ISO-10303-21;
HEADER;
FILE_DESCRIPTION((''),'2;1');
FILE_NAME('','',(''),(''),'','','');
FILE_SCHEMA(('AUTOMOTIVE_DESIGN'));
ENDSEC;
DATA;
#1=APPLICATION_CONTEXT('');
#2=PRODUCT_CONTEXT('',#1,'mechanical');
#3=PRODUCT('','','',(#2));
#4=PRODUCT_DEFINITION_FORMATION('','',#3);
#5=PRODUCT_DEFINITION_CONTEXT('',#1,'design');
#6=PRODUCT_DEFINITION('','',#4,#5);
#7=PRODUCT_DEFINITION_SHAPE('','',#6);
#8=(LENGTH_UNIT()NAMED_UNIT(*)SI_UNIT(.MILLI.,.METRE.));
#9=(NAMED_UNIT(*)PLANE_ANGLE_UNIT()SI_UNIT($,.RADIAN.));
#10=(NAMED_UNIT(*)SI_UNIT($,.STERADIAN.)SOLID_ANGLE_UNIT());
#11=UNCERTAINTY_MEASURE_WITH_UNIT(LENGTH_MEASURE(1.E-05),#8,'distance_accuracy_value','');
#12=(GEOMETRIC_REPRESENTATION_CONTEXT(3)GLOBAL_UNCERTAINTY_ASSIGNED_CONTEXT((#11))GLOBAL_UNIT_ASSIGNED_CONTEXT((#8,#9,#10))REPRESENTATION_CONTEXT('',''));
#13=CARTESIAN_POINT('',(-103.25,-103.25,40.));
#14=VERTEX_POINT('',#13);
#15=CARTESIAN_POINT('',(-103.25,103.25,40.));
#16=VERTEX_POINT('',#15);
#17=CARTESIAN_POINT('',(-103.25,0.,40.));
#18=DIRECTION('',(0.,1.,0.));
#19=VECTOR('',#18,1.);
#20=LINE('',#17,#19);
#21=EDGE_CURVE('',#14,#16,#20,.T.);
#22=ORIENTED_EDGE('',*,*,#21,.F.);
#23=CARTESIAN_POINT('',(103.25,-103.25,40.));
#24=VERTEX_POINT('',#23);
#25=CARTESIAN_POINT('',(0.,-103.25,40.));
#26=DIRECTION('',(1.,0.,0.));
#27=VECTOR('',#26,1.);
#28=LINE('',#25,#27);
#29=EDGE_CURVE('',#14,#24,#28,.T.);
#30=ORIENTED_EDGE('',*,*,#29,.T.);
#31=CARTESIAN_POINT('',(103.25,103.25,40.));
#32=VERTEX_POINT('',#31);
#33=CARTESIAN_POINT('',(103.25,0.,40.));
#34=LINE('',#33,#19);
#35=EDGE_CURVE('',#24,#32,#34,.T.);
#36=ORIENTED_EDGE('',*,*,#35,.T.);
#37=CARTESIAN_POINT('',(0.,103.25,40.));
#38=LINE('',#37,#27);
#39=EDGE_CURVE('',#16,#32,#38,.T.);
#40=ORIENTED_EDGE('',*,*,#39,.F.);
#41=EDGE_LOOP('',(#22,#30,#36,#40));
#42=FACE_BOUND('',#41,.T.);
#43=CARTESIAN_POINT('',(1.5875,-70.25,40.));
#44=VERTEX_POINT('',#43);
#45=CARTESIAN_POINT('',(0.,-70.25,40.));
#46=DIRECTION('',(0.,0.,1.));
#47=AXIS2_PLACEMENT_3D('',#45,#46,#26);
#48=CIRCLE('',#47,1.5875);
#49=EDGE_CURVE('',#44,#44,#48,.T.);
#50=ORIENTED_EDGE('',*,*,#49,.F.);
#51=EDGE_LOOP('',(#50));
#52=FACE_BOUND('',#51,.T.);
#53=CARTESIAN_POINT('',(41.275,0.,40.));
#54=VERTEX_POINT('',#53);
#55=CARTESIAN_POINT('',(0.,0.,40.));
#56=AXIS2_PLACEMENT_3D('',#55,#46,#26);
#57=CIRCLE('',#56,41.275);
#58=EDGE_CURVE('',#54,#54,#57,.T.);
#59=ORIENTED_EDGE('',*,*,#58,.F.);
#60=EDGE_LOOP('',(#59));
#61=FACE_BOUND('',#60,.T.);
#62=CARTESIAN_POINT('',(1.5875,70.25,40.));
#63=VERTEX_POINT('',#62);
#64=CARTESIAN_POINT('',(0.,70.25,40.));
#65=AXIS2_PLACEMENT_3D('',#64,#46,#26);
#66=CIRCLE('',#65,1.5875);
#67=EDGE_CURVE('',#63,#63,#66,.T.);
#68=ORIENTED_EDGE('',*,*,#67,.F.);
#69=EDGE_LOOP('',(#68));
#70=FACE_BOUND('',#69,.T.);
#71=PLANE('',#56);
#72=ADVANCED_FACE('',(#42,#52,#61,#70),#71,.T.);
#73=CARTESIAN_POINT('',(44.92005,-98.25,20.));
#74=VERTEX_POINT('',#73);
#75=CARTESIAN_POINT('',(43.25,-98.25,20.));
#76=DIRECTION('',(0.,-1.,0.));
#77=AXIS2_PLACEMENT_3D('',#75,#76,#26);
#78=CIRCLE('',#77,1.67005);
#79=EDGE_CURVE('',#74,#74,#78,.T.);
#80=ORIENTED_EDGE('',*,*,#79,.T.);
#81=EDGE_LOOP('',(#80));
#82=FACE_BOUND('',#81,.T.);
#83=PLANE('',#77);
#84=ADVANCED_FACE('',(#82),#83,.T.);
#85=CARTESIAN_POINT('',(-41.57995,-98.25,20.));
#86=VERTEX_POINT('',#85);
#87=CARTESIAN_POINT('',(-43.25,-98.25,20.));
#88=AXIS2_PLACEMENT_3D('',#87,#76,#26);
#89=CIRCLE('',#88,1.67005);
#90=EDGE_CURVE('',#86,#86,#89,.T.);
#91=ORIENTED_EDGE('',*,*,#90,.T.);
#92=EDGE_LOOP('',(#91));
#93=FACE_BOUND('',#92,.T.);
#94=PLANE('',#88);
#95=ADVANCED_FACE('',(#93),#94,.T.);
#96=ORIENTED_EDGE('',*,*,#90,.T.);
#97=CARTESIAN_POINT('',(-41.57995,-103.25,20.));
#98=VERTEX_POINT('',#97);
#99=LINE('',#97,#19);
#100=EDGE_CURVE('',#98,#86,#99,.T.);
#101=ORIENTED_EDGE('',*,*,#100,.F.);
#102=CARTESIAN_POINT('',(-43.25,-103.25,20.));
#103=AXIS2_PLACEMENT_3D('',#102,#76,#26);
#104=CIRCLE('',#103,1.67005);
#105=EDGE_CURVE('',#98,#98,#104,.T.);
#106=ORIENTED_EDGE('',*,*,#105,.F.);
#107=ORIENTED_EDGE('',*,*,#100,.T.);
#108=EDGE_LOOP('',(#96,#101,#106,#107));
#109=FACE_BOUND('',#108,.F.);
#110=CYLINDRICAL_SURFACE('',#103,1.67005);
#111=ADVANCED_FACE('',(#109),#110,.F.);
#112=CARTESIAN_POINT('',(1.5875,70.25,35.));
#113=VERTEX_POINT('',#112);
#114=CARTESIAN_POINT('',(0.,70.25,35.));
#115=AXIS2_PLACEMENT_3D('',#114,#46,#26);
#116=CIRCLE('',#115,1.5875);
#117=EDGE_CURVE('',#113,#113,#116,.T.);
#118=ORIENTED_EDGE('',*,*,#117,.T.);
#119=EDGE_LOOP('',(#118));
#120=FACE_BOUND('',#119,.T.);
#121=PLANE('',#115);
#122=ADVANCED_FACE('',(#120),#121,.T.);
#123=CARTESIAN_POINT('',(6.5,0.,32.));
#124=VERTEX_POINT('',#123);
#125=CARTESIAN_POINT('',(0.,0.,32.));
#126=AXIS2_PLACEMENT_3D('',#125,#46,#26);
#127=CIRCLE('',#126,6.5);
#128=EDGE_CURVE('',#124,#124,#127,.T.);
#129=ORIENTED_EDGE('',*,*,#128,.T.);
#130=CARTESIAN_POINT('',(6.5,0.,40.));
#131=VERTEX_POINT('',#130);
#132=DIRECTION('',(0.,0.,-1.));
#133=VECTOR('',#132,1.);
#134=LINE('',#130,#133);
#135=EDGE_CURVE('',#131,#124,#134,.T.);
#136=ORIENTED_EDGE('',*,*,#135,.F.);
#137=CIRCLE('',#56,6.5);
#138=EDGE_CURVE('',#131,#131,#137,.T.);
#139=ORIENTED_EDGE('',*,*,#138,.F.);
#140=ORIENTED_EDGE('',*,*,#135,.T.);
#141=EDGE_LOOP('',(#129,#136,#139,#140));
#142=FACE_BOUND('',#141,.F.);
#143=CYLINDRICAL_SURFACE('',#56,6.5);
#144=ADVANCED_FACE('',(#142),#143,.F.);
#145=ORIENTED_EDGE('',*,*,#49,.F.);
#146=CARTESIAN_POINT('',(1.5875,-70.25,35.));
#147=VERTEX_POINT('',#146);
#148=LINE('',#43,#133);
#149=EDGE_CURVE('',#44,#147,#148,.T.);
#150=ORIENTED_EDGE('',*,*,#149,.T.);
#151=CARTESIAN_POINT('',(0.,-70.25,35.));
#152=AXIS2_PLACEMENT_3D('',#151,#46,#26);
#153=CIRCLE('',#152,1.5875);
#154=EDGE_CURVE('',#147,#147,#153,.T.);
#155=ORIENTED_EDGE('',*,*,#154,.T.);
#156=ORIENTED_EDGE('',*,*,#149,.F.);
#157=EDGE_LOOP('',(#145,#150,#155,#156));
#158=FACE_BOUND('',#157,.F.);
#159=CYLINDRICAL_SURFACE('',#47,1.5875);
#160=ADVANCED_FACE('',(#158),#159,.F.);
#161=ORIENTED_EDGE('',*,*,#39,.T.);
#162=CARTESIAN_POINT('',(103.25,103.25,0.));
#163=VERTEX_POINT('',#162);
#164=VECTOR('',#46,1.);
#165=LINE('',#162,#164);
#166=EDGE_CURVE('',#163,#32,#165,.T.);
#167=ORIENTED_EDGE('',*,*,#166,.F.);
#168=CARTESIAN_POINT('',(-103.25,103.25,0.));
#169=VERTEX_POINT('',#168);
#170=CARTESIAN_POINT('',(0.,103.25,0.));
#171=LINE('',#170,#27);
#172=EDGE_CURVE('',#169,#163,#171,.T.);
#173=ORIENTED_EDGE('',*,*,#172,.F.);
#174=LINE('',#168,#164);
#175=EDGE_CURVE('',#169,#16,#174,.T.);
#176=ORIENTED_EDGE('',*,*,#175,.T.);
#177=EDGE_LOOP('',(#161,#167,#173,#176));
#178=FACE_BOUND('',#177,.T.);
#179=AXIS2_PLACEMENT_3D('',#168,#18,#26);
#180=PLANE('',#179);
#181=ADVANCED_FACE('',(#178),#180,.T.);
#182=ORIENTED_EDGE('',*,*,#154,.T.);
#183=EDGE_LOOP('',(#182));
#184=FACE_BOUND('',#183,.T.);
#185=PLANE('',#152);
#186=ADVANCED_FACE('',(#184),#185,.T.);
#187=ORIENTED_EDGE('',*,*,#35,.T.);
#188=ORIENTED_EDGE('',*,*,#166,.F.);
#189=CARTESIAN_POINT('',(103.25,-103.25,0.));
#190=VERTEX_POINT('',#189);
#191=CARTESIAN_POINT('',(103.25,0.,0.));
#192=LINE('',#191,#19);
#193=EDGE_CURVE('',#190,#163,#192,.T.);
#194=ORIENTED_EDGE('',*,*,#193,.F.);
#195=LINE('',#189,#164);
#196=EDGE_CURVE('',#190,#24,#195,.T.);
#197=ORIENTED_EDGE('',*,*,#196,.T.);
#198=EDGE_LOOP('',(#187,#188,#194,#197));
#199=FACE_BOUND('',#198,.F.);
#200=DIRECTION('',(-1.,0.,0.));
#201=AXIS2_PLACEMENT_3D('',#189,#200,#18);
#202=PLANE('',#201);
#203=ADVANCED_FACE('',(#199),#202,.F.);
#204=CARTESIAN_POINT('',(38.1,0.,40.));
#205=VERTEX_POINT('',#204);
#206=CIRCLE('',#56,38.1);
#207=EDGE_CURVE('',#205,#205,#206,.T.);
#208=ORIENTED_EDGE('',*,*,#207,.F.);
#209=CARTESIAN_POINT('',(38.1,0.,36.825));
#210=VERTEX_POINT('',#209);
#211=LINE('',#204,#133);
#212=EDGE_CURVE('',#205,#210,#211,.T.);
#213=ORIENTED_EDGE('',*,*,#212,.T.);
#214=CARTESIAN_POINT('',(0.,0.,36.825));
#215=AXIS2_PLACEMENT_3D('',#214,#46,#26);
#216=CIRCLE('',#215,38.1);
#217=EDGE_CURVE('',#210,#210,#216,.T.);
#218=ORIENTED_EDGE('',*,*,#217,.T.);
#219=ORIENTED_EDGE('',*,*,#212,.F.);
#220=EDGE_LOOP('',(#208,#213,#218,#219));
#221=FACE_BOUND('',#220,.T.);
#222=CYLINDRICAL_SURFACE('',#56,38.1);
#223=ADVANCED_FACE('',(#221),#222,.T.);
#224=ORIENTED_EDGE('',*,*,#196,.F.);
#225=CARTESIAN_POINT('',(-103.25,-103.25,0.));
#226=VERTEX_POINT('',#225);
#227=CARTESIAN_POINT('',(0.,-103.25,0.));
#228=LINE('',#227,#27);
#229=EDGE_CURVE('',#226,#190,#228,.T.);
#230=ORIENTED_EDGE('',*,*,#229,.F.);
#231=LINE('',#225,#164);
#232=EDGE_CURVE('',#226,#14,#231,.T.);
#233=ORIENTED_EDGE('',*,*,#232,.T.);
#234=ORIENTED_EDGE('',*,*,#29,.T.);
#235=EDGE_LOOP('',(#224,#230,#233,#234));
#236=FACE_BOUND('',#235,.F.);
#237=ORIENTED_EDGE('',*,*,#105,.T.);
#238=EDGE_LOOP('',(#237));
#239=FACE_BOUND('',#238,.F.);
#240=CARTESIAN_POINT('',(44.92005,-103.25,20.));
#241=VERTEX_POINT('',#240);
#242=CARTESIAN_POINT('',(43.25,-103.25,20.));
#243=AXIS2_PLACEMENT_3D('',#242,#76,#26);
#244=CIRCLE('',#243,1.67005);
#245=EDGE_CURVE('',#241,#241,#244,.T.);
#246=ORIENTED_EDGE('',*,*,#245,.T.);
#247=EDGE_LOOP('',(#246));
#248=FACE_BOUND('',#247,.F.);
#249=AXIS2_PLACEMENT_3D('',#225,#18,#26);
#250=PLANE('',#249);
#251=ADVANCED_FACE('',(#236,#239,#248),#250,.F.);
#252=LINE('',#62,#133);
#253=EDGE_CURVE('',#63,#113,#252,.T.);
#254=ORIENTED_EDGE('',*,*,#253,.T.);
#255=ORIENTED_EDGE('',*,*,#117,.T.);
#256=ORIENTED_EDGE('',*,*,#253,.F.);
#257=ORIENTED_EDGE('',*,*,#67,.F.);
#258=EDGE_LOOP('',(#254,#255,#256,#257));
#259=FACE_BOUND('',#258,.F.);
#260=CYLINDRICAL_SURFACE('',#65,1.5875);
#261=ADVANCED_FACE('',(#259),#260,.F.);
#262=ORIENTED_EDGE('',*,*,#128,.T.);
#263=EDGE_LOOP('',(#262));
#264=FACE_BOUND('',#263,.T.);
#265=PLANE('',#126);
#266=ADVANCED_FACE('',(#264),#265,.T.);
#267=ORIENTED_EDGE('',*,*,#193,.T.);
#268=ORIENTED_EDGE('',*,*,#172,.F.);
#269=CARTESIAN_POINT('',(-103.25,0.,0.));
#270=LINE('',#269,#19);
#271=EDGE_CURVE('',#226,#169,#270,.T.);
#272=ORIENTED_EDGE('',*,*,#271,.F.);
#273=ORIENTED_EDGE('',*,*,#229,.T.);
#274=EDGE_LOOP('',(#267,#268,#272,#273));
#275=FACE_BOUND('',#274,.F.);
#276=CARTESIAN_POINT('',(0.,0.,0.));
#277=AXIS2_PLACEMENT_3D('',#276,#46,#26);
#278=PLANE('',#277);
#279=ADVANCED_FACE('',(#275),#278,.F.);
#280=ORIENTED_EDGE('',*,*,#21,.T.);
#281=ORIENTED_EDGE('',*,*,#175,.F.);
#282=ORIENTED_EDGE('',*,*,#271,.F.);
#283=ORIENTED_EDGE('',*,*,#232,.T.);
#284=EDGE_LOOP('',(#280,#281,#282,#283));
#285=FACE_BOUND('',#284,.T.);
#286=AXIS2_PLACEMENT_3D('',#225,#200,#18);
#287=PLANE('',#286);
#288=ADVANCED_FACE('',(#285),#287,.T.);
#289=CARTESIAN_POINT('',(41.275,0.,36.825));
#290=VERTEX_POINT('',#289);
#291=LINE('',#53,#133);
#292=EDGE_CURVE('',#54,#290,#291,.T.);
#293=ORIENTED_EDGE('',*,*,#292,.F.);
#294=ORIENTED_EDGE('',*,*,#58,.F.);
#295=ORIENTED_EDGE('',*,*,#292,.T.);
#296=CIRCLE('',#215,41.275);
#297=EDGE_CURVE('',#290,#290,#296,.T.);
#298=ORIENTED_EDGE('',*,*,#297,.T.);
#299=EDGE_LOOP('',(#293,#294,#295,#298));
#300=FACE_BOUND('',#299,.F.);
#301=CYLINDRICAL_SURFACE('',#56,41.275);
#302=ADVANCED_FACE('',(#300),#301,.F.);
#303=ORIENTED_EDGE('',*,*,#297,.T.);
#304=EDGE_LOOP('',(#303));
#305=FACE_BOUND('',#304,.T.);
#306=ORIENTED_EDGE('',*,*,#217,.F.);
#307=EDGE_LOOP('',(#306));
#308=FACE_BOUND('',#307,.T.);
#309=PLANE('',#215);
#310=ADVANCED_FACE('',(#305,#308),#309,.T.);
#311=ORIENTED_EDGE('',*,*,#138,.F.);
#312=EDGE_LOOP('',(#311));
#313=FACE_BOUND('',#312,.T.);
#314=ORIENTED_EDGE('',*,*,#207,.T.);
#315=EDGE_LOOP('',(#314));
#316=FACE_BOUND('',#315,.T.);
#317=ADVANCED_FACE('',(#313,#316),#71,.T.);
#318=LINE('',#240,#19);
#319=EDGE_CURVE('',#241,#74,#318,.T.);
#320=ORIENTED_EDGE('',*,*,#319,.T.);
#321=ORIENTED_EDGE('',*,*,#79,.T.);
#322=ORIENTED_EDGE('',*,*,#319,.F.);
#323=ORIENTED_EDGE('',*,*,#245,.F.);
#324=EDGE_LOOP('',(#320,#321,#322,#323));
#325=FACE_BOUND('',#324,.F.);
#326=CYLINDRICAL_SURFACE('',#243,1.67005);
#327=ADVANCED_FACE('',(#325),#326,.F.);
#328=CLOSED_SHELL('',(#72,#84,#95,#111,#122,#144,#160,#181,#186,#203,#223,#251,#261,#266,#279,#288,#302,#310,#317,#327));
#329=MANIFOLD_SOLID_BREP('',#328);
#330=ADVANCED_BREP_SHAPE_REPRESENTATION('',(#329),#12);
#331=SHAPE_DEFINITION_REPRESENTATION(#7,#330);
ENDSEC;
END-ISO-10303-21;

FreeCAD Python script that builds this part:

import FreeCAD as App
import Part
import Sketcher

V = App.Vector

doc = App.newDocument("Part")
body = doc.addObject("PartDesign::Body", "Body")

# Sketch on XY plane
sketch1 = body.newObject("Sketcher::SketchObject", "Sketch")
sketch1.AttachmentSupport = (doc.getObject("XY_Plane"), [""])
sketch1.MapMode = "FlatFace"
sketch1.addGeometry(Part.LineSegment(V(-103, 103, 0), V(-103, -103, 0)), False)
sketch1.addGeometry(Part.LineSegment(V(-103, -103, 0), V(103, -103, 0)), False)
sketch1.addGeometry(Part.LineSegment(V(103, -103, 0), V(103, 103, 0)), False)
sketch1.addGeometry(Part.LineSegment(V(103, 103, 0), V(-103, 103, 0)), False)
sketch1.addConstraint(Sketcher.Constraint("Coincident", 0, 2, 1, 1))
sketch1.addConstraint(Sketcher.Constraint("Coincident", 1, 2, 2, 1))
sketch1.addConstraint(Sketcher.Constraint("Coincident", 2, 2, 3, 1))
sketch1.addConstraint(Sketcher.Constraint("Coincident", 3, 2, 0, 1))
sketch1.addConstraint(Sketcher.Constraint("Vertical", 0))
sketch1.addConstraint(Sketcher.Constraint("Horizontal", 1))
sketch1.addConstraint(Sketcher.Constraint("Vertical", 2))
sketch1.addConstraint(Sketcher.Constraint("Horizontal", 3))
sketch1.addConstraint(Sketcher.Constraint("Symmetric", 0, 2, 2, 2, -1, 1))
sketch1.addConstraint(Sketcher.Constraint("Equal", 3, 0))
sketch1.addConstraint(Sketcher.Constraint("DistanceX", 1, 1, 1, 2, 206.5))
pad1 = body.newObject("PartDesign::Pad", "Pad")
pad1.Profile = sketch1
pad1.Length = 40

# Sketch on XY plane
sketch2 = body.newObject("Sketcher::SketchObject", "Sketch001")
sketch2.AttachmentSupport = (doc.getObject("XY_Plane"), [""])
sketch2.MapMode = "FlatFace"
sketch2.AttachmentOffset = App.Placement(V(0, 0, 40), App.Rotation())
sketch2.addGeometry(Part.Circle(V(0, 0, 0), V(0, 0, 1), 41), False)
sketch2.addGeometry(Part.Circle(V(0, 0, 0), V(0, 0, 1), 38), False)
sketch2.addConstraint(Sketcher.Constraint("Coincident", 0, 3, -1, 1))
sketch2.addConstraint(Sketcher.Constraint("Coincident", 1, 3, -1, 1))
sketch2.addConstraint(Sketcher.Constraint("Diameter", 1, 76.2))
sketch2.addConstraint(Sketcher.Constraint("Diameter", 0, 82.55))
pocket1 = body.newObject("PartDesign::Pocket", "Pocket")
pocket1.Profile = sketch2
pocket1.Length = 3.175

# Sketch on XY plane
sketch3 = body.newObject("Sketcher::SketchObject", "Sketch002")
sketch3.AttachmentSupport = (doc.getObject("XY_Plane"), [""])
sketch3.MapMode = "FlatFace"
sketch3.AttachmentOffset = App.Placement(V(0, 0, 40), App.Rotation())
sketch3.addGeometry(Part.Circle(V(0, 0, 0), V(0, 0, 1), 6), False)
sketch3.addConstraint(Sketcher.Constraint("Coincident", 0, 3, -1, 1))
sketch3.addConstraint(Sketcher.Constraint("Diameter", 0, 13.0))
pocket2 = body.newObject("PartDesign::Pocket", "Pocket001")
pocket2.Profile = sketch3
pocket2.Length = 8

# Sketch on XY plane
sketch4 = body.newObject("Sketcher::SketchObject", "Sketch003")
sketch4.AttachmentSupport = (doc.getObject("XY_Plane"), [""])
sketch4.MapMode = "FlatFace"
sketch4.AttachmentOffset = App.Placement(V(0, 0, 40), App.Rotation())
sketch4.addGeometry(Part.Circle(V(0, 70.2, 0), V(0, 0, 1), 1.6), False)
sketch4.addGeometry(Part.Circle(V(0, -70.2, 0), V(0, 0, 1), 1.6), False)
sketch4.addConstraint(Sketcher.Constraint("Equal", 0, 1))
sketch4.addConstraint(Sketcher.Constraint("Symmetric", 0, 3, 1, 3, -1, 1))
sketch4.addConstraint(Sketcher.Constraint("PointOnObject", 0, 3, -2))
sketch4.addConstraint(Sketcher.Constraint("Diameter", 0, 3.175))
sketch4.addConstraint(Sketcher.Constraint("DistanceY", 1, 3, 0, 3, 140.5))
pocket3 = body.newObject("PartDesign::Pocket", "Pocket002")
pocket3.Profile = sketch4
pocket3.Length = 5

# Sketch on XZ plane
sketch5 = body.newObject("Sketcher::SketchObject", "Sketch004")
sketch5.AttachmentSupport = (doc.getObject("XZ_Plane"), [""])
sketch5.MapMode = "FlatFace"
sketch5.AttachmentOffset = App.Placement(V(0, 0, 103.25), App.Rotation())
sketch5.addGeometry(Part.Circle(V(-43.2, 20, 0), V(0, 0, 1), 1.7), False)
sketch5.addGeometry(Part.Circle(V(43.2, 20, 0), V(0, 0, 1), 1.7), False)
sketch5.addConstraint(Sketcher.Constraint("Equal", 0, 1))
sketch5.addConstraint(Sketcher.Constraint("Symmetric", 0, 3, 1, 3, -2))
sketch5.addConstraint(Sketcher.Constraint("DistanceY", -1, 1, 0, 3, 20.0))
sketch5.addConstraint(Sketcher.Constraint("Diameter", 0, 3.3401))
sketch5.addConstraint(Sketcher.Constraint("DistanceX", 0, 3, 1, 3, 86.5))
pocket4 = body.newObject("PartDesign::Pocket", "Pocket003")
pocket4.Profile = sketch5
pocket4.Length = 5

doc.recompute()
